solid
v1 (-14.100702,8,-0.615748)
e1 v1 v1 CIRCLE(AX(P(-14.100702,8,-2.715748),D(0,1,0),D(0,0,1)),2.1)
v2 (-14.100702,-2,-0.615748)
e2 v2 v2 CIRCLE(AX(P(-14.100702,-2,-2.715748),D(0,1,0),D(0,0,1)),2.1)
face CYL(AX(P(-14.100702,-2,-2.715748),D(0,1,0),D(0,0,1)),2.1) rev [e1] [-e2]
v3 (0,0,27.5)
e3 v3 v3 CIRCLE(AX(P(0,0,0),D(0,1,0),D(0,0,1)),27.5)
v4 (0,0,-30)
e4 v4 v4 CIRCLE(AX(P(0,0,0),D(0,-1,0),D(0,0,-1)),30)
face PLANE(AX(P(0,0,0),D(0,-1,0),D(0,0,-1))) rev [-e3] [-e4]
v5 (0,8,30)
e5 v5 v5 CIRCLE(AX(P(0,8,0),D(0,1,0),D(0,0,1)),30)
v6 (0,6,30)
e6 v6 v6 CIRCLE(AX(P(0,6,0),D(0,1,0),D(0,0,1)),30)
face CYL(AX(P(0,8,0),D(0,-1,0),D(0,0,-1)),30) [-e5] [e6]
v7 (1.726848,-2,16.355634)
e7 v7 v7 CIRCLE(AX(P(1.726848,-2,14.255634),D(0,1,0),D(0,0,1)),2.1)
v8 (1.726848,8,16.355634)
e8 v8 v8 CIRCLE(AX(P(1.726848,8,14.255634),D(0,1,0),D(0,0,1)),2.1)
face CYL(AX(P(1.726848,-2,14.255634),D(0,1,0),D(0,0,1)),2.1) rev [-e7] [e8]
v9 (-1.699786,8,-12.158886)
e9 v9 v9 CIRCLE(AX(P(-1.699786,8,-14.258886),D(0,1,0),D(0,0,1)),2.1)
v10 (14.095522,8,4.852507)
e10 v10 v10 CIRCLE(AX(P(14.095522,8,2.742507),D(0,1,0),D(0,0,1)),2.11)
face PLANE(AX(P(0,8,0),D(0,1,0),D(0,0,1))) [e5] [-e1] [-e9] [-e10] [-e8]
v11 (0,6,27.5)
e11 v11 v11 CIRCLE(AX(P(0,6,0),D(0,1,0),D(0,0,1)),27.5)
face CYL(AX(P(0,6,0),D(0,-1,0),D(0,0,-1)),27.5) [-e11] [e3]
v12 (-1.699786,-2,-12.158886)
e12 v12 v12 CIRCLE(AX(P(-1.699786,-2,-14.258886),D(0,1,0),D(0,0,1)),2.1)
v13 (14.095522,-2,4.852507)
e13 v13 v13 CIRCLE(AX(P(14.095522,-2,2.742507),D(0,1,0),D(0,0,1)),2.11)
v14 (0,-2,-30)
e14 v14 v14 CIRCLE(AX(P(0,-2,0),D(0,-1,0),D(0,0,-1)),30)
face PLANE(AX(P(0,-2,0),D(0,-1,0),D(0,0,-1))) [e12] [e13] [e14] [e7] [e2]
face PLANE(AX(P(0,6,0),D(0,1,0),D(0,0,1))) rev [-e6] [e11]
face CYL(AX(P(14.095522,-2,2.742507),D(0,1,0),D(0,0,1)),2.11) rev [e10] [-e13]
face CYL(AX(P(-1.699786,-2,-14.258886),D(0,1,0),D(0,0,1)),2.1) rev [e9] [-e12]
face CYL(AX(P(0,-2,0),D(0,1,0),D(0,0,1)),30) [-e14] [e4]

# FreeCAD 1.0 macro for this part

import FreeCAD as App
import Part
import Sketcher

V = App.Vector
Q = App.Units.Quantity

doc = App.newDocument("Part")
body = doc.addObject("PartDesign::Body", "Body")

# Sketch on XZ plane
sketch1 = body.newObject("Sketcher::SketchObject", "Sketch")
sketch1.AttachmentSupport = (doc.getObject("XZ_Plane"), [""])
sketch1.MapMode = "FlatFace"
sketch1.addGeometry(Part.Circle(V(0, 0, 0), V(0, 0, 1), 28), False)
sketch1.addConstraint(Sketcher.Constraint("Coincident", 0, 3, -1, 1))
sketch1.addConstraint(Sketcher.Constraint("Diameter", 0, Q("55 mm")))
pad1 = body.newObject("PartDesign::Pad", "Pad")
pad1.Profile = sketch1
pad1.Length = 6
pad1.Reversed = True

# Sketch on XZ plane
sketch2 = body.newObject("Sketcher::SketchObject", "Sketch001")
sketch2.AttachmentSupport = (doc.getObject("XZ_Plane"), [""])
sketch2.MapMode = "FlatFace"
sketch2.AttachmentOffset = App.Placement(V(0, 0, -6), App.Rotation())
sketch2.addGeometry(Part.Circle(V(0, 0, 0), V(0, 0, 1), 30), False)
sketch2.addConstraint(Sketcher.Constraint("Coincident", 0, 3, -1, 1))
sketch2.addConstraint(Sketcher.Constraint("Diameter", 0, Q("60 mm")))
pad2 = body.newObject("PartDesign::Pad", "Pad001")
pad2.Profile = sketch2
pad2.Length = 2
pad2.Reversed = True

# Sketch on XZ plane
sketch3 = body.newObject("Sketcher::SketchObject", "Sketch002")
sketch3.AttachmentSupport = (doc.getObject("XZ_Plane"), [""])
sketch3.MapMode = "FlatFace"
sketch3.AttachmentOffset = App.Placement(V(0, 0, 2), App.Rotation())
sketch3.addGeometry(Part.Circle(V(0, 0, 0), V(0, 0, 1), 30), False)
sketch3.addConstraint(Sketcher.Constraint("Coincident", 0, 3, -1, 1))
sketch3.addConstraint(Sketcher.Constraint("Diameter", 0, Q("60 mm")))
pad3 = body.newObject("PartDesign::Pad", "Pad002")
pad3.Profile = sketch3
pad3.Length = 2
pad3.Reversed = True

# Sketch on XZ plane
sketch4 = body.newObject("Sketcher::SketchObject", "Sketch003")
sketch4.AttachmentSupport = (doc.getObject("XZ_Plane"), [""])
sketch4.MapMode = "FlatFace"
sketch4.AttachmentOffset = App.Placement(V(0, 0, -8), App.Rotation())
sketch4.addGeometry(Part.Circle(V(14.1, 2.7, 0), V(0, 0, 1), 2.1), False)
sketch4.addGeometry(Part.Circle(V(1.7, 14.3, 0), V(0, 0, 1), 2.1), False)
sketch4.addGeometry(Part.Circle(V(-14.1, -2.7, 0), V(0, 0, 1), 2.1), False)
sketch4.addGeometry(Part.Circle(V(-1.7, -14.3, 0), V(0, 0, 1), 2.1), False)
sketch4.addConstraint(Sketcher.Constraint("Equal", 1, 2))
sketch4.addConstraint(Sketcher.Constraint("Equal", 2, 3))
sketch4.addConstraint(Sketcher.Constraint("Diameter", 1, Q("4.2 mm")))
sketch4.addConstraint(Sketcher.Constraint("Diameter", 0, Q("4.22 mm")))
sketch4.addConstraint(Sketcher.Constraint("DistanceX", -1, 1, 1, 3, Q("1.726848 mm")))
sketch4.addConstraint(Sketcher.Constraint("DistanceX", 2, 3, 1, 3, Q("15.82755 mm")))
sketch4.addConstraint(Sketcher.Constraint("DistanceY", 2, 3, 1, 3, Q("16.971381 mm")))
sketch4.addConstraint(Sketcher.Constraint("DistanceY", 3, 3, 2, 3, Q("11.543138 mm")))
sketch4.addConstraint(Sketcher.Constraint("DistanceX", 3, 3, 0, 3, Q("15.795308 mm")))
sketch4.addConstraint(Sketcher.Constraint("DistanceX", -1, 1, 0, 3, Q("14.095522 mm")))
sketch4.addConstraint(Sketcher.Constraint("DistanceY", -1, 1, 0, 3, Q("2.742507 mm")))
sketch4.addConstraint(Sketcher.Constraint("DistanceY", -1, 1, 1, 3, Q("14.255634 mm")))
pocket1 = body.newObject("PartDesign::Pocket", "Pocket")
pocket1.Profile = sketch4
pocket1.Type = "ThroughAll"
pocket1.Midplane = True

doc.recompute()
